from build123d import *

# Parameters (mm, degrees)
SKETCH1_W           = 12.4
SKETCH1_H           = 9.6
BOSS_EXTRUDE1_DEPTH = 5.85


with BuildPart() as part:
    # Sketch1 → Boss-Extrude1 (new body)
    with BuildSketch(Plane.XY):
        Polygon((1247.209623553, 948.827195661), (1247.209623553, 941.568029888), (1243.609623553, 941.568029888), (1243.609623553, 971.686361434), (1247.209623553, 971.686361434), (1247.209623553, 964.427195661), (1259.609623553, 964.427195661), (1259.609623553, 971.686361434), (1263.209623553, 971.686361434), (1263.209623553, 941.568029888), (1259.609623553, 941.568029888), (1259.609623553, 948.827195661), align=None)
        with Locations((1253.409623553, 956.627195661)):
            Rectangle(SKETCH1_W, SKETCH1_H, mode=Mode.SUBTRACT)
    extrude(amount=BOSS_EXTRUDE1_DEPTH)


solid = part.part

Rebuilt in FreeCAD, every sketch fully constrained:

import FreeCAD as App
import Part
import Sketcher

V = App.Vector

doc = App.newDocument("Part")
params = doc.addObject("Spreadsheet::Sheet", "Params")
for row, (alias, value) in enumerate([
    ("sketch1_width", "12.4 mm"),
    ("sketch1_width2", "3.6 mm"),
    ("sketch1_height", "9.6 mm"),
    ("pad1_length", "5.85 mm"),
], start=1):
    params.set(f"A{row}", alias)
    params.set(f"B{row}", "=" + value)
    params.setAlias(f"B{row}", alias)

body = doc.addObject("PartDesign::Body", "Body")

sketch1 = body.newObject("Sketcher::SketchObject", "Sketch")
sketch1.AttachmentSupport = (doc.getObject("XY_Plane"), [""])
sketch1.MapMode = "FlatFace"
sketch1.addGeometry([
    Part.LineSegment(V(1247.2, 941.6, 0), V(1247.2, 948.8, 0)),
    Part.LineSegment(V(1247.2, 948.8, 0), V(1259.6, 948.8, 0)),
    Part.LineSegment(V(1259.6, 948.8, 0), V(1259.6, 941.6, 0)),
    Part.LineSegment(V(1259.6, 941.6, 0), V(1263.2, 941.6, 0)),
    Part.LineSegment(V(1263.2, 941.6, 0), V(1263.2, 971.7, 0)),
    Part.LineSegment(V(1263.2, 971.7, 0), V(1259.6, 971.7, 0)),
    Part.LineSegment(V(1259.6, 971.7, 0), V(1259.6, 964.4, 0)),
    Part.LineSegment(V(1259.6, 964.4, 0), V(1247.2, 964.4, 0)),
    Part.LineSegment(V(1247.2, 964.4, 0), V(1247.2, 971.7, 0)),
    Part.LineSegment(V(1247.2, 971.7, 0), V(1243.6, 971.7, 0)),
    Part.LineSegment(V(1243.6, 971.7, 0), V(1243.6, 941.6, 0)),
    Part.LineSegment(V(1243.6, 941.6, 0), V(1247.2, 941.6, 0)),
    Part.LineSegment(V(1247.2, 951.8, 0), V(1247.2, 961.4, 0)),
    Part.LineSegment(V(1247.2, 961.4, 0), V(1259.6, 961.4, 0)),
    Part.LineSegment(V(1259.6, 961.4, 0), V(1259.6, 951.8, 0)),
    Part.LineSegment(V(1259.6, 951.8, 0), V(1247.2, 951.8, 0)),
], False)
sketch1.addConstraint([
    Sketcher.Constraint("Coincident", 0, 2, 1, 1),
    Sketcher.Constraint("Coincident", 1, 2, 2, 1),
    Sketcher.Constraint("Coincident", 2, 2, 3, 1),
    Sketcher.Constraint("Coincident", 3, 2, 4, 1),
    Sketcher.Constraint("Coincident", 4, 2, 5, 1),
    Sketcher.Constraint("Coincident", 5, 2, 6, 1),
    Sketcher.Constraint("Coincident", 6, 2, 7, 1),
    Sketcher.Constraint("Coincident", 7, 2, 8, 1),
    Sketcher.Constraint("Coincident", 8, 2, 9, 1),
    Sketcher.Constraint("Coincident", 9, 2, 10, 1),
    Sketcher.Constraint("Coincident", 10, 2, 11, 1),
    Sketcher.Constraint("Coincident", 11, 2, 0, 1),
    Sketcher.Constraint("Coincident", 12, 2, 13, 1),
    Sketcher.Constraint("Coincident", 13, 2, 14, 1),
    Sketcher.Constraint("Coincident", 14, 2, 15, 1),
    Sketcher.Constraint("Coincident", 15, 2, 12, 1),
    Sketcher.Constraint("Vertical", 0),
    Sketcher.Constraint("Horizontal", 1),
    Sketcher.Constraint("Vertical", 2),
    Sketcher.Constraint("Horizontal", 3),
    Sketcher.Constraint("Vertical", 4),
    Sketcher.Constraint("Horizontal", 5),
    Sketcher.Constraint("Vertical", 6),
    Sketcher.Constraint("Horizontal", 7),
    Sketcher.Constraint("Vertical", 8),
    Sketcher.Constraint("Horizontal", 9),
    Sketcher.Constraint("Vertical", 10),
    Sketcher.Constraint("Horizontal", 11),
    Sketcher.Constraint("Vertical", 12),
    Sketcher.Constraint("Horizontal", 13),
    Sketcher.Constraint("Vertical", 14),
    Sketcher.Constraint("Horizontal", 15),
    Sketcher.Constraint("Horizontal", 5, 2, 8, 2),
    Sketcher.Constraint("Horizontal", 3, 2, 10, 2),
    Sketcher.Constraint("Vertical", 2, 2, 5, 2),
    Sketcher.Constraint("Vertical", 0, 2, 7, 2),
    Sketcher.Constraint("Vertical", 11, 2, 12, 2),
    Sketcher.Constraint("Vertical", 6, 2, 13, 2),
    Sketcher.Constraint("Equal", 5, 9),
    Sketcher.Constraint("Equal", 2, 6),
    Sketcher.Constraint("DistanceX", 1, 1, 1, 2, 12.4),
    Sketcher.Constraint("DistanceX", 3, 1, 3, 2, 3.6),
    Sketcher.Constraint("DistanceY", 12, 1, 12, 2, 9.6),
    Sketcher.Constraint("DistanceY", 12, 2, 7, 2, 3.0),
    Sketcher.Constraint("DistanceY", 1, 2, 14, 2, 3.0),
    Sketcher.Constraint("DistanceY", 4, 1, 4, 2, 30.118332),
    Sketcher.Constraint("DistanceY", -1, 1, 2, 2, 941.56803),
    Sketcher.Constraint("DistanceX", -1, 1, 0, 2, 1247.209624),
])
sketch1.setExpression("Constraints[40]", "Params.sketch1_width")
sketch1.setExpression("Constraints[41]", "Params.sketch1_width2")
sketch1.setExpression("Constraints[42]", "Params.sketch1_height")
pad1 = body.newObject("PartDesign::Pad", "Pad")
pad1.Profile = sketch1
pad1.setExpression("Length", "Params.pad1_length")

doc.recompute()
